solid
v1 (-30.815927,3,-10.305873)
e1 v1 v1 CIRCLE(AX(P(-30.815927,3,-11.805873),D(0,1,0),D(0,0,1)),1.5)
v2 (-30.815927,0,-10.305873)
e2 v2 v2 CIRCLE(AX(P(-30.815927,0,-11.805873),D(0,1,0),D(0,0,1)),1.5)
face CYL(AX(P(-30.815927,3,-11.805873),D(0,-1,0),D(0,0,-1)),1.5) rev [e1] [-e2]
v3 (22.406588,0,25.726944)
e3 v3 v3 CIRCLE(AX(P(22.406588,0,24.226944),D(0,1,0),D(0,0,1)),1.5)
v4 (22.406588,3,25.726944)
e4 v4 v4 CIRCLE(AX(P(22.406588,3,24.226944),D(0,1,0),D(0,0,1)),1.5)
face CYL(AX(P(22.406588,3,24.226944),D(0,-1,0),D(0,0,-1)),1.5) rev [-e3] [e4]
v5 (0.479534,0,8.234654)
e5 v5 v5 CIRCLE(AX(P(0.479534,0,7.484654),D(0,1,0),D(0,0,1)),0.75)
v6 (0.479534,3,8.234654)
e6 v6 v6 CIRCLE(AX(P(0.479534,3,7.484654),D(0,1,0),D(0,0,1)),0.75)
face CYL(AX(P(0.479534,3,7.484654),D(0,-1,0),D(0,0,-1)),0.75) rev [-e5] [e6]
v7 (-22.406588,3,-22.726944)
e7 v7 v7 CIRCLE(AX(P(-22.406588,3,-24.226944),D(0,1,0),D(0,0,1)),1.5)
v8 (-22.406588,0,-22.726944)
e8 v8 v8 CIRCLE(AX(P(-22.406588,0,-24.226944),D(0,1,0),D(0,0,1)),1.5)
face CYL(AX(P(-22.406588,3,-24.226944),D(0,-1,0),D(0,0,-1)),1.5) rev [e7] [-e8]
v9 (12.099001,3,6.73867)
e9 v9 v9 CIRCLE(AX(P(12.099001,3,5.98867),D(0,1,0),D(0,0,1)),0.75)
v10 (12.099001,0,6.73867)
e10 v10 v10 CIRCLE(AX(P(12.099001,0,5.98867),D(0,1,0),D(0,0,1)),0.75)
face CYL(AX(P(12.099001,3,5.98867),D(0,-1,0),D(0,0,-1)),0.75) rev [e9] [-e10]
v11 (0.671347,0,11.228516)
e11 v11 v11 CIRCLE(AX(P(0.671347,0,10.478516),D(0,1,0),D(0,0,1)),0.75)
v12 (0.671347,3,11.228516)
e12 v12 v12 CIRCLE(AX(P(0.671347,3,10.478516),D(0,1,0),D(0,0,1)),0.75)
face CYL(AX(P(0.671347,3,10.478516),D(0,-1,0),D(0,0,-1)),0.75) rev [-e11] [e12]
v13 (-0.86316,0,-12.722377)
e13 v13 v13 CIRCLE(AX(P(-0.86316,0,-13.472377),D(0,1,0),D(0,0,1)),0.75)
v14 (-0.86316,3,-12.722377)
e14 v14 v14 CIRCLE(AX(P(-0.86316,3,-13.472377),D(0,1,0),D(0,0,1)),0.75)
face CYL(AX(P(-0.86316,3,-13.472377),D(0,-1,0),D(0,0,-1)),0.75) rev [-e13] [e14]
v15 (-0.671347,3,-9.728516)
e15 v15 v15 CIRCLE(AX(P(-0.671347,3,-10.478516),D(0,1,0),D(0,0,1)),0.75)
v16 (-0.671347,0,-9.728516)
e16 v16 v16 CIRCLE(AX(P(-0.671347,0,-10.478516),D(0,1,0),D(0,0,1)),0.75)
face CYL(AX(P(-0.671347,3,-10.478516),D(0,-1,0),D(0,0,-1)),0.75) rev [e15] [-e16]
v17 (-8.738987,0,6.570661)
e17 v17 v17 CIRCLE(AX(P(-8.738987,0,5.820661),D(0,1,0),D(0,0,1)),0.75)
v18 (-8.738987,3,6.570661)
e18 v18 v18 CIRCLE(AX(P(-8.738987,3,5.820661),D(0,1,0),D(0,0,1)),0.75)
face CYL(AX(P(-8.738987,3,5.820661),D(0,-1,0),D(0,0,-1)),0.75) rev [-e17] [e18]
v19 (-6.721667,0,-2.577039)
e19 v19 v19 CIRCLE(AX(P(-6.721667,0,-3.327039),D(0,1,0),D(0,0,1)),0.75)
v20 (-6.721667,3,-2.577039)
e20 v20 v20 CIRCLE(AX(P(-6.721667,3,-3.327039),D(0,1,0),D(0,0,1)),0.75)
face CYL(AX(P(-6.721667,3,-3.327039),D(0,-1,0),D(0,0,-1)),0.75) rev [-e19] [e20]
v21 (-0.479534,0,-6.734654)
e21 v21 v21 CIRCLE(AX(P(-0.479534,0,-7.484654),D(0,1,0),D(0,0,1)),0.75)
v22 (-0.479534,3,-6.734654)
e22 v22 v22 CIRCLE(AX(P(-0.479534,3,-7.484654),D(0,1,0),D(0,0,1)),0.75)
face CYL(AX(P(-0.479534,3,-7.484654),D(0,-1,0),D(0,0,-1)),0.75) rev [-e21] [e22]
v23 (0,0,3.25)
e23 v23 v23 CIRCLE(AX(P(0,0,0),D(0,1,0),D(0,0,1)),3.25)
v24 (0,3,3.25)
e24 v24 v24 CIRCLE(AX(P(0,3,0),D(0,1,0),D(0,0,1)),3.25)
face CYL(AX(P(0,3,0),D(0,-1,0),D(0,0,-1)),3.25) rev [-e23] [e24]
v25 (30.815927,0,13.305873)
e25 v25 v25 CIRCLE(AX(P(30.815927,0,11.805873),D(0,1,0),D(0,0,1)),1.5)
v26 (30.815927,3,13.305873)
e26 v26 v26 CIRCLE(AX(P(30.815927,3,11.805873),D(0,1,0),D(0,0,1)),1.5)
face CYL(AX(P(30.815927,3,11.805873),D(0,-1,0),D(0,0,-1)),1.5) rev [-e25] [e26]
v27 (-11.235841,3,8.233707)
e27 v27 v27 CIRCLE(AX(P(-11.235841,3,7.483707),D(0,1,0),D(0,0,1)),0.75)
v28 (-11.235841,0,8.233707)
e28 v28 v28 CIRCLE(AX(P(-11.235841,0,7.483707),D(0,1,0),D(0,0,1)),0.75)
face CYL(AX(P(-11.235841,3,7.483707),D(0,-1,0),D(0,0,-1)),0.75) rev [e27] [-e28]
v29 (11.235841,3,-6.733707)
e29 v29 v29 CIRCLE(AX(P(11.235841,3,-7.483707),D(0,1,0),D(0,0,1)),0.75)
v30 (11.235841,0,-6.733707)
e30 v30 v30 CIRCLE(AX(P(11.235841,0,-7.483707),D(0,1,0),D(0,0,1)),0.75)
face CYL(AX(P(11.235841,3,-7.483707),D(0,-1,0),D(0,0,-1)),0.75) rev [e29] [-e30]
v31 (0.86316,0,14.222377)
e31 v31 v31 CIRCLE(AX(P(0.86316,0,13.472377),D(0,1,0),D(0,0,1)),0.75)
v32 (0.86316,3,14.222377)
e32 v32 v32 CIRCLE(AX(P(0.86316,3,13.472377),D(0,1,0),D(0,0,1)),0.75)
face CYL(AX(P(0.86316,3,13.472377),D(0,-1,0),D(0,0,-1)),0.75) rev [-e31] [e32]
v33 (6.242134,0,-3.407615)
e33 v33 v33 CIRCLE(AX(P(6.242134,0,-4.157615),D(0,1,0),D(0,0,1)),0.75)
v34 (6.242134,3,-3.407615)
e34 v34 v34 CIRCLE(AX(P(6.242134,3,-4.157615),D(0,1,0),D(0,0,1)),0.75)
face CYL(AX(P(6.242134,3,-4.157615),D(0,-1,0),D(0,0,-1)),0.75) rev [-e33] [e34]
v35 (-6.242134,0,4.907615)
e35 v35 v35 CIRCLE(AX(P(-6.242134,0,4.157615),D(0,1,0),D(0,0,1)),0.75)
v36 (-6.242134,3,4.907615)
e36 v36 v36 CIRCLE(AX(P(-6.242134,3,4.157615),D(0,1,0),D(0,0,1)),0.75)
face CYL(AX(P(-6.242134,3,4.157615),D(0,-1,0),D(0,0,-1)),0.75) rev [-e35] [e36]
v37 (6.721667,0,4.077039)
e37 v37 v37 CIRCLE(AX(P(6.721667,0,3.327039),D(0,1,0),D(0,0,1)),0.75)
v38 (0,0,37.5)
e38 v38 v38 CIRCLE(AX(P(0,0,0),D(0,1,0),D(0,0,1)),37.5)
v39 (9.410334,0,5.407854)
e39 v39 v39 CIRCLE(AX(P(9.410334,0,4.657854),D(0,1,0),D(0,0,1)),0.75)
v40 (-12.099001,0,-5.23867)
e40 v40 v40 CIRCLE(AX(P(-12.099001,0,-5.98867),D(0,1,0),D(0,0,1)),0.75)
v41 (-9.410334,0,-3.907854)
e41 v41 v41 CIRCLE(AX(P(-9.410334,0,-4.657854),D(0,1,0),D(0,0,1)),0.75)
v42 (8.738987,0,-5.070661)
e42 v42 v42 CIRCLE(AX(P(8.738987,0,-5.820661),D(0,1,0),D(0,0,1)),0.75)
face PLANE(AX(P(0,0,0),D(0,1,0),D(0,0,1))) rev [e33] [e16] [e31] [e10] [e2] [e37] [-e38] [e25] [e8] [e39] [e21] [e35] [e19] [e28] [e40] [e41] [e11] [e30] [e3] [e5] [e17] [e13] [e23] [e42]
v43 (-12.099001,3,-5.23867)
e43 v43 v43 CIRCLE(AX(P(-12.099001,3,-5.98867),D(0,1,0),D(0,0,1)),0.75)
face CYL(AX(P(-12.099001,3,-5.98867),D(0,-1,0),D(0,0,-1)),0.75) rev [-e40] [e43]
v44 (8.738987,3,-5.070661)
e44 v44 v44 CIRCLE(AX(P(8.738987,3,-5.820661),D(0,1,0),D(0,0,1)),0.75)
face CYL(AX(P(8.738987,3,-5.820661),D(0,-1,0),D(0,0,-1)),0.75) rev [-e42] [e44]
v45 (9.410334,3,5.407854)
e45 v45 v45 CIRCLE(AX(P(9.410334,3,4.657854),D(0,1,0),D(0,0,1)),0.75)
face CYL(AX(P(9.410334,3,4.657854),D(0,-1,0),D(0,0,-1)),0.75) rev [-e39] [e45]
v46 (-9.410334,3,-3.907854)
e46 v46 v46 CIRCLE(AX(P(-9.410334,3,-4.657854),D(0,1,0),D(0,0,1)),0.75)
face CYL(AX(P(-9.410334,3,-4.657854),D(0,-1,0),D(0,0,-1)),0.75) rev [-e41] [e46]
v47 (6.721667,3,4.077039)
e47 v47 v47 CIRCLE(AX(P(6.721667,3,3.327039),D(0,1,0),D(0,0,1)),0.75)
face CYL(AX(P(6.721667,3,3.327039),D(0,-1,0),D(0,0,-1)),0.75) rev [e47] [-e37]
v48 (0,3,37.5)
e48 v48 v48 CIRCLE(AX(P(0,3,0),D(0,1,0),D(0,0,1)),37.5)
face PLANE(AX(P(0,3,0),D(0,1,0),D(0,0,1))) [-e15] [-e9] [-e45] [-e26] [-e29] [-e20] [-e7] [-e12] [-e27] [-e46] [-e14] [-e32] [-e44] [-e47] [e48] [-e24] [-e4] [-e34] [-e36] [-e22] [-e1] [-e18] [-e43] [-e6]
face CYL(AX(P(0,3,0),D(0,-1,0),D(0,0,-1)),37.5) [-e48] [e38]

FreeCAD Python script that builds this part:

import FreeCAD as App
import Part
import Sketcher

doc = App.newDocument("Part")
body = doc.addObject("PartDesign::Body", "Body")

# Sketch on XZ plane
sketch1 = body.newObject("Sketcher::SketchObject", "Sketch")
sketch1.AttachmentSupport = (doc.getObject("XZ_Plane"), [""])
sketch1.MapMode = "FlatFace"
sketch1.addGeometry(Part.Circle(App.Vector(0, 0, 0), App.Vector(0, 0, 1), 37.5), False)
sketch1.addGeometry(Part.Circle(App.Vector(-22.4, -24.2, 0), App.Vector(0, 0, 1), 1.5), False)
sketch1.addGeometry(Part.Circle(App.Vector(-30.8, -11.8, 0), App.Vector(0, 0, 1), 1.5), False)
sketch1.addGeometry(Part.Circle(App.Vector(-0.9, -13.5, 0), App.Vector(0, 0, 1), 0.8), False)
sketch1.addGeometry(Part.Circle(App.Vector(-12.1, -6, 0), App.Vector(0, 0, 1), 0.8), False)
sketch1.addGeometry(Part.Circle(App.Vector(-9.4, -4.7, 0), App.Vector(0, 0, 1), 0.8), False)
sketch1.addGeometry(Part.Circle(App.Vector(-0.7, -10.5, 0), App.Vector(0, 0, 1), 0.8), False)
sketch1.addGeometry(Part.Circle(App.Vector(-0.5, -7.5, 0), App.Vector(0, 0, 1), 0.8), False)
sketch1.addGeometry(Part.Circle(App.Vector(-6.7, -3.3, 0), App.Vector(0, 0, 1), 0.8), False)
sketch1.addGeometry(Part.Circle(App.Vector(-8.7, 5.8, 0), App.Vector(0, 0, 1), 0.8), False)
sketch1.addGeometry(Part.Circle(App.Vector(-11.2, 7.5, 0), App.Vector(0, 0, 1), 0.8), False)
sketch1.addGeometry(Part.Circle(App.Vector(-6.2, 4.2, 0), App.Vector(0, 0, 1), 0.8), False)
sketch1.addGeometry(Part.Circle(App.Vector(6.2, -4.2, 0), App.Vector(0, 0, 1), 0.8), False)
sketch1.addGeometry(Part.Circle(App.Vector(11.2, -7.5, 0), App.Vector(0, 0, 1), 0.8), False)
sketch1.addGeometry(Part.Circle(App.Vector(8.7, -5.8, 0), App.Vector(0, 0, 1), 0.8), False)
sketch1.addGeometry(Part.Circle(App.Vector(0, 0, 0), App.Vector(0, 0, 1), 3.2), False)
sketch1.addGeometry(Part.Circle(App.Vector(6.7, 3.3, 0), App.Vector(0, 0, 1), 0.8), False)
sketch1.addGeometry(Part.Circle(App.Vector(0.5, 7.5, 0), App.Vector(0, 0, 1), 0.8), False)
sketch1.addGeometry(Part.Circle(App.Vector(0.7, 10.5, 0), App.Vector(0, 0, 1), 0.8), False)
sketch1.addGeometry(Part.Circle(App.Vector(9.4, 4.7, 0), App.Vector(0, 0, 1), 0.8), False)
sketch1.addGeometry(Part.Circle(App.Vector(12.1, 6, 0), App.Vector(0, 0, 1), 0.8), False)
sketch1.addGeometry(Part.Circle(App.Vector(0.9, 13.5, 0), App.Vector(0, 0, 1), 0.8), False)
sketch1.addGeometry(Part.Circle(App.Vector(30.8, 11.8, 0), App.Vector(0, 0, 1), 1.5), False)
sketch1.addGeometry(Part.Circle(App.Vector(22.4, 24.2, 0), App.Vector(0, 0, 1), 1.5), False)
sketch1.addConstraint(Sketcher.Constraint("Coincident", 0, 3, -1, 1))
sketch1.addConstraint(Sketcher.Constraint("Coincident", 15, 3, -1, 1))
sketch1.addConstraint(Sketcher.Constraint("Equal", 1, 2))
sketch1.addConstraint(Sketcher.Constraint("Equal", 3, 4))
sketch1.addConstraint(Sketcher.Constraint("Equal", 4, 5))
sketch1.addConstraint(Sketcher.Constraint("Equal", 5, 6))
sketch1.addConstraint(Sketcher.Constraint("Equal", 6, 7))
sketch1.addConstraint(Sketcher.Constraint("Equal", 7, 8))
sketch1.addConstraint(Sketcher.Constraint("Equal", 8, 9))
sketch1.addConstraint(Sketcher.Constraint("Equal", 9, 10))
sketch1.addConstraint(Sketcher.Constraint("Equal", 10, 11))
sketch1.addConstraint(Sketcher.Constraint("Equal", 11, 12))
sketch1.addConstraint(Sketcher.Constraint("Equal", 12, 13))
sketch1.addConstraint(Sketcher.Constraint("Equal", 13, 14))
sketch1.addConstraint(Sketcher.Constraint("Equal", 14, 16))
sketch1.addConstraint(Sketcher.Constraint("Equal", 16, 17))
sketch1.addConstraint(Sketcher.Constraint("Equal", 17, 18))
sketch1.addConstraint(Sketcher.Constraint("Equal", 18, 19))
sketch1.addConstraint(Sketcher.Constraint("Equal", 19, 20))
sketch1.addConstraint(Sketcher.Constraint("Equal", 20, 21))
sketch1.addConstraint(Sketcher.Constraint("Equal", 2, 22))
sketch1.addConstraint(Sketcher.Constraint("Equal", 22, 23))
sketch1.addConstraint(Sketcher.Constraint("Symmetric", 11, 3, 12, 3, -1, 1))
sketch1.addConstraint(Sketcher.Constraint("Symmetric", 10, 3, 13, 3, -1, 1))
sketch1.addConstraint(Sketcher.Constraint("Symmetric", 9, 3, 14, 3, -1, 1))
sketch1.addConstraint(Sketcher.Constraint("Symmetric", 8, 3, 16, 3, -1, 1))
sketch1.addConstraint(Sketcher.Constraint("Symmetric", 7, 3, 17, 3, -1, 1))
sketch1.addConstraint(Sketcher.Constraint("Symmetric", 6, 3, 18, 3, -1, 1))
sketch1.addConstraint(Sketcher.Constraint("Symmetric", 5, 3, 19, 3, -1, 1))
sketch1.addConstraint(Sketcher.Constraint("Symmetric", 4, 3, 20, 3, -1, 1))
sketch1.addConstraint(Sketcher.Constraint("Symmetric", 3, 3, 21, 3, -1, 1))
sketch1.addConstraint(Sketcher.Constraint("Symmetric", 2, 3, 22, 3, -1, 1))
sketch1.addConstraint(Sketcher.Constraint("Symmetric", 1, 3, 23, 3, -1, 1))
sketch1.addConstraint(Sketcher.Constraint("Diameter", 0, 75.0))
sketch1.addConstraint(Sketcher.Constraint("Diameter", 1, 3.0))
sketch1.addConstraint(Sketcher.Constraint("Diameter", 3, 1.5))
sketch1.addConstraint(Sketcher.Constraint("Diameter", 15, 6.5))
sketch1.addConstraint(Sketcher.Constraint("DistanceX", 4, 3, -1, 1, 12.099001))
sketch1.addConstraint(Sketcher.Constraint("DistanceX", 3, 3, 13, 3, 12.099001))
sketch1.addConstraint(Sketcher.Constraint("DistanceX", 5, 3, 7, 3, 8.930801))
sketch1.addConstraint(Sketcher.Constraint("DistanceY", 7, 3, 5, 3, 2.8268))
sketch1.addConstraint(Sketcher.Constraint("DistanceY", 8, 3, 9, 3, 9.1477))
sketch1.addConstraint(Sketcher.Constraint("DistanceX", 5, 3, 11, 3, 3.1682))
sketch1.addConstraint(Sketcher.Constraint("DistanceY", 6, 3, 12, 3, 6.320901))
sketch1.addConstraint(Sketcher.Constraint("DistanceX", 8, 3, 12, 3, 12.963801))
sketch1.addConstraint(Sketcher.Constraint("DistanceX", 3, 3, -1, 1, 0.86316))
sketch1.addConstraint(Sketcher.Constraint("DistanceY", 4, 3, -1, 1, 5.98867))
sketch1.addConstraint(Sketcher.Constraint("DistanceY", 8, 3, -1, 1, 3.327039))
sketch1.addConstraint(Sketcher.Constraint("DistanceX", 2, 3, 1, 3, 8.409339))
sketch1.addConstraint(Sketcher.Constraint("DistanceY", 1, 3, 2, 3, 12.421071))
sketch1.addConstraint(Sketcher.Constraint("DistanceY", 2, 3, 5, 3, 7.148018))
sketch1.addConstraint(Sketcher.Constraint("DistanceY", 3, 3, 6, 3, 2.993862))
sketch1.addConstraint(Sketcher.Constraint("DistanceY", 6, 3, 5, 3, 5.820661))
sketch1.addConstraint(Sketcher.Constraint("DistanceX", 1, 3, 6, 3, 21.735241))
sketch1.addConstraint(Sketcher.Constraint("DistanceX", 8, 3, 6, 3, 6.05032))
sketch1.addConstraint(Sketcher.Constraint("DistanceX", 9, 3, 8, 3, 2.01732))
sketch1.addConstraint(Sketcher.Constraint("DistanceY", 5, 3, 10, 3, 12.141562))
sketch1.addConstraint(Sketcher.Constraint("DistanceY", 5, 3, 11, 3, 8.81547))
sketch1.addConstraint(Sketcher.Constraint("DistanceX", 1, 3, -1, 1, 22.406588))
pad1 = body.newObject("PartDesign::Pad", "Pad")
pad1.Profile = sketch1
pad1.Length = 3
pad1.Reversed = True

doc.recompute()
